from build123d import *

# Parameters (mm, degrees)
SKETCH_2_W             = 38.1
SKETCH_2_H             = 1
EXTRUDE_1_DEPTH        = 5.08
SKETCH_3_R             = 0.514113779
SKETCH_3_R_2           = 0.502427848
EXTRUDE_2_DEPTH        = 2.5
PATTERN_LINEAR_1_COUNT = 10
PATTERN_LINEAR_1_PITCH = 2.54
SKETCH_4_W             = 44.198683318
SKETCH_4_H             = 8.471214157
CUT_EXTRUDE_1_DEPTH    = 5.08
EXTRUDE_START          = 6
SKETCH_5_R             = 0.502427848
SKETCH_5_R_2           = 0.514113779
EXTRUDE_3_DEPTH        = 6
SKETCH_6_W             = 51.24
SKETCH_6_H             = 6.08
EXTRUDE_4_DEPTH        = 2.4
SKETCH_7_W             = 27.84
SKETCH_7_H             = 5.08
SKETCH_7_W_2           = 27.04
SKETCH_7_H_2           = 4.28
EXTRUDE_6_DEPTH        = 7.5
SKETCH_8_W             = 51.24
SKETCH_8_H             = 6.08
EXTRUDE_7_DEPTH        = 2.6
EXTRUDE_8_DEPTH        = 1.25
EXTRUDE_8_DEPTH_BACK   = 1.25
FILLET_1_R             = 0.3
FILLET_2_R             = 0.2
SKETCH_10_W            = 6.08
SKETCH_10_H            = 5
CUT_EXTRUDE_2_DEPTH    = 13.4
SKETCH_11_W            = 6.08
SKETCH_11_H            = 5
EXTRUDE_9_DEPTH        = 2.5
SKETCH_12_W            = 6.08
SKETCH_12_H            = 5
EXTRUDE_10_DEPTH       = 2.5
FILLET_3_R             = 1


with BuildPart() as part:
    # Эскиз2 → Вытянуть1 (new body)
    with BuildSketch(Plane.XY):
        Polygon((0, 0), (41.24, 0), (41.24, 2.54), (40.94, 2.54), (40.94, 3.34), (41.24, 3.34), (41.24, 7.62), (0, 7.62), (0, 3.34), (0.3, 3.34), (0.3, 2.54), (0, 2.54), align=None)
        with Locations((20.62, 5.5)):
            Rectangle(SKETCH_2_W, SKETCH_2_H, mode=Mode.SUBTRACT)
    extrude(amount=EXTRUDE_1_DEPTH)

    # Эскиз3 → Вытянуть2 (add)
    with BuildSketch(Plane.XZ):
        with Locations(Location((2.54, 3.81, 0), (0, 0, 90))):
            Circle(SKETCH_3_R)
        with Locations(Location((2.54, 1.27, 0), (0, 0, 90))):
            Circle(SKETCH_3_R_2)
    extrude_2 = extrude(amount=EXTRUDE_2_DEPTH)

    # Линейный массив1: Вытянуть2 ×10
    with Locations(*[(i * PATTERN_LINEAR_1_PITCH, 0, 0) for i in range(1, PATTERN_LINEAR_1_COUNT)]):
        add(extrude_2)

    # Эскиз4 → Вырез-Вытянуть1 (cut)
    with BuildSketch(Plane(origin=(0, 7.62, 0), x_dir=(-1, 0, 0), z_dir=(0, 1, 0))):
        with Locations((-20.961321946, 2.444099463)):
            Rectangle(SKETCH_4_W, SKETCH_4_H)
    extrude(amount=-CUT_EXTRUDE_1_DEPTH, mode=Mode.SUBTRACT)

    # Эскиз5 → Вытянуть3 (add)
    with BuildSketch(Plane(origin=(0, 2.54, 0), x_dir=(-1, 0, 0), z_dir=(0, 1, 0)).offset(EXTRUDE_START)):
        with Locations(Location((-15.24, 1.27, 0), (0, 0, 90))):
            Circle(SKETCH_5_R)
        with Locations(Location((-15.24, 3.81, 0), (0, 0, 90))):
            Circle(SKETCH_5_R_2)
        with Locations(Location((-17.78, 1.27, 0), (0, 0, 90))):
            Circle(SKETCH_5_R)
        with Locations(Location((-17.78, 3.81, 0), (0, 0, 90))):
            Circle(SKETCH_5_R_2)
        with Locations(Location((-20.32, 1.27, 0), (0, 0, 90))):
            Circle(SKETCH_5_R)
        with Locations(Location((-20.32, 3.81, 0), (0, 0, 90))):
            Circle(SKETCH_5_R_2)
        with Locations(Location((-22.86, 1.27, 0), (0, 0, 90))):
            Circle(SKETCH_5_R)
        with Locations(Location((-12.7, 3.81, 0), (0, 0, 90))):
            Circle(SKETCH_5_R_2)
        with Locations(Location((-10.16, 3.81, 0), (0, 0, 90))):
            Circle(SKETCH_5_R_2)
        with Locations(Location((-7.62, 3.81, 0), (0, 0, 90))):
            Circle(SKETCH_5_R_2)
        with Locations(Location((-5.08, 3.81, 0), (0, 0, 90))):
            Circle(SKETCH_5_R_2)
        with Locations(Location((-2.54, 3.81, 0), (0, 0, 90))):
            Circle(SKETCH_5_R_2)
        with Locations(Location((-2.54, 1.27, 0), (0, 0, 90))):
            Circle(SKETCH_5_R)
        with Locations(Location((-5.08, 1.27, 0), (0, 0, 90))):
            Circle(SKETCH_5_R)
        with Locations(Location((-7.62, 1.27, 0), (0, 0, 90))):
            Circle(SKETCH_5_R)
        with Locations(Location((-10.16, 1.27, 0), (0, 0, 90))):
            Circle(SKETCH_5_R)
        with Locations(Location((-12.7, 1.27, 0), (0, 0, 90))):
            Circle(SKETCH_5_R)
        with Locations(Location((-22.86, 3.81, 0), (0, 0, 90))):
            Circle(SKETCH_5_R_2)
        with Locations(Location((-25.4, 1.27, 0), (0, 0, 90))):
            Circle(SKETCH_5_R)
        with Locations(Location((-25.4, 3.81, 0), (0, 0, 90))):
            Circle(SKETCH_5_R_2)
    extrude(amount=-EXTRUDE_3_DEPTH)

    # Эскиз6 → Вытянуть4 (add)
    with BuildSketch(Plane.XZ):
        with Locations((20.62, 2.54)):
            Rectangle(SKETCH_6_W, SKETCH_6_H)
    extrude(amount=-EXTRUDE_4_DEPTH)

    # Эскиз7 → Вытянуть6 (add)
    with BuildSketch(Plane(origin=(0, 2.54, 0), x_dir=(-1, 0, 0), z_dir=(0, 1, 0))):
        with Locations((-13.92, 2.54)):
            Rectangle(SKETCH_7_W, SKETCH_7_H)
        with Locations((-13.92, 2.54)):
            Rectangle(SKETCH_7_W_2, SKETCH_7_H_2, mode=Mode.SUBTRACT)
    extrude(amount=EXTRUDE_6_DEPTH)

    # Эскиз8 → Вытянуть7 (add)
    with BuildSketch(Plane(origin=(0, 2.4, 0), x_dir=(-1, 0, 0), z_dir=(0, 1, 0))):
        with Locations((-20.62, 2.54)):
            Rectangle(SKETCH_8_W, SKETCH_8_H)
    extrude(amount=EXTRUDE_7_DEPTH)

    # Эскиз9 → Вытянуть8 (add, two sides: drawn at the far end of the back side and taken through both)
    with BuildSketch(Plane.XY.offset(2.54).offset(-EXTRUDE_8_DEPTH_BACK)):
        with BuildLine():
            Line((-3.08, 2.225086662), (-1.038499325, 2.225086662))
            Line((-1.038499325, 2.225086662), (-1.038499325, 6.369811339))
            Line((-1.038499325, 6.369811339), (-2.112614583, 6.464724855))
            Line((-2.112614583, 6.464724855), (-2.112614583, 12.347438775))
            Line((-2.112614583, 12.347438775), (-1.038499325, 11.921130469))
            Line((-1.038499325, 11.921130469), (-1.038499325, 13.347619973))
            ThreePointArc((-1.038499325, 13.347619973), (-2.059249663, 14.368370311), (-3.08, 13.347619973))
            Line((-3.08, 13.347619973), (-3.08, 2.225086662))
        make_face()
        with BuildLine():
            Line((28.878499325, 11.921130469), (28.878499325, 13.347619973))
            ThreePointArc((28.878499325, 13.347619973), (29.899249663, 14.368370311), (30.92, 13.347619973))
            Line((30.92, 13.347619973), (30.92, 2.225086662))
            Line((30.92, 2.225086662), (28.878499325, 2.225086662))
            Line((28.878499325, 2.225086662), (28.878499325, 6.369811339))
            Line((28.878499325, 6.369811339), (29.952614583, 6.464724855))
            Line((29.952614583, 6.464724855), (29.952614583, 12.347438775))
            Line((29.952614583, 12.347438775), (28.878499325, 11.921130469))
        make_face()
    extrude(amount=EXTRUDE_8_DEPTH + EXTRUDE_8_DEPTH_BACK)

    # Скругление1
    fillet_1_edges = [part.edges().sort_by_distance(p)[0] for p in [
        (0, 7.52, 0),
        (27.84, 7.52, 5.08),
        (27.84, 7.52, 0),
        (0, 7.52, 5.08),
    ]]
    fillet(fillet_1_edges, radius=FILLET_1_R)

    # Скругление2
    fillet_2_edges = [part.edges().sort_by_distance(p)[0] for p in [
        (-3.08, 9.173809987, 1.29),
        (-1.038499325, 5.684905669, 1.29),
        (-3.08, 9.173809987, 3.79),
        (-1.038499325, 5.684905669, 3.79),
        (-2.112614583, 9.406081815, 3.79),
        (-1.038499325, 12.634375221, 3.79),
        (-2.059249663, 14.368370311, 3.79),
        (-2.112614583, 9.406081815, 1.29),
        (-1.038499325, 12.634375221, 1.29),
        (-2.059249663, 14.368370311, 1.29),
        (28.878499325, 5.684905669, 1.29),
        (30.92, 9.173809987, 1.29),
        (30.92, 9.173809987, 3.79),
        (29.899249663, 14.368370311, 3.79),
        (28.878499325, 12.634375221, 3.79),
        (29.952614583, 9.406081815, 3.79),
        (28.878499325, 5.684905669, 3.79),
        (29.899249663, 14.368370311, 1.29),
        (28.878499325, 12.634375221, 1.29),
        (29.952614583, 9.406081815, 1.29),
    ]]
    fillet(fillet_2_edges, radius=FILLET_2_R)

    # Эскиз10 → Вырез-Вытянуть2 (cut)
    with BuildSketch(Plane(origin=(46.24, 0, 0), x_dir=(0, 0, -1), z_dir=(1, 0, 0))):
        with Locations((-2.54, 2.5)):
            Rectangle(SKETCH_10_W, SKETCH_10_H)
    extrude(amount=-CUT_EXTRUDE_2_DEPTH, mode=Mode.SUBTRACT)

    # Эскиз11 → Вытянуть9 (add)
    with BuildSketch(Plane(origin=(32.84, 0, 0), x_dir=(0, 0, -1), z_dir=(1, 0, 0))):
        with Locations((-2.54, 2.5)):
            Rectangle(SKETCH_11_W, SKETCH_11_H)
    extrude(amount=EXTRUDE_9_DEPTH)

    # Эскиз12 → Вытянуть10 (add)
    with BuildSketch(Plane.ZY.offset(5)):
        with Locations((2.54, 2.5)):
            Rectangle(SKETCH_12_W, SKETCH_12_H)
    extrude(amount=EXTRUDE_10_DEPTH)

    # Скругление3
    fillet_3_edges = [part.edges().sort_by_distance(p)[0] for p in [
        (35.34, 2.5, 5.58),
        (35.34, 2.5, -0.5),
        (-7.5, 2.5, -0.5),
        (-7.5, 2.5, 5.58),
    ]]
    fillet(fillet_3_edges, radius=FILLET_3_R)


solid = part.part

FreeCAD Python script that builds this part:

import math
import FreeCAD as App
import Part
import Sketcher
Q = App.Units.Quantity


def edges_at(feature, points):
    """Names of the edges that pass closest to the given points."""
    edges = feature.Shape.Edges
    near = lambda p: min(range(len(edges)), key=lambda i: edges[i].distToShape(Part.Vertex(*p))[0])
    return sorted({f"Edge{near(p) + 1}" for p in points})

doc = App.newDocument("Part")
body = doc.addObject("PartDesign::Body", "Body")

# Sketch on XY plane
sketch1 = doc.addObject("Sketcher::SketchObject", "Sketch")
body.addObject(sketch1)
sketch1.AttachmentSupport = (doc.XY_Plane, [""])
sketch1.MapMode = "FlatFace"
sketch1.addGeometry([
    Part.LineSegment(App.Vector(0, 0, 0), App.Vector(41.24, 0, 0)),  # 0
    Part.LineSegment(App.Vector(41.24, 0, 0), App.Vector(41.24, 2.54, 0)),  # 1
    Part.LineSegment(App.Vector(41.24, 2.54, 0), App.Vector(40.94, 2.54, 0)),  # 2
    Part.LineSegment(App.Vector(40.94, 2.54, 0), App.Vector(40.94, 3.34, 0)),  # 3
    Part.LineSegment(App.Vector(40.94, 3.34, 0), App.Vector(41.24, 3.34, 0)),  # 4
    Part.LineSegment(App.Vector(41.24, 3.34, 0), App.Vector(41.24, 7.62, 0)),  # 5
    Part.LineSegment(App.Vector(41.24, 7.62, 0), App.Vector(0, 7.62, 0)),  # 6
    Part.LineSegment(App.Vector(0, 7.62, 0), App.Vector(0, 3.34, 0)),  # 7
    Part.LineSegment(App.Vector(0, 3.34, 0), App.Vector(0.3, 3.34, 0)),  # 8
    Part.LineSegment(App.Vector(0.3, 3.34, 0), App.Vector(0.3, 2.54, 0)),  # 9
    Part.LineSegment(App.Vector(0.3, 2.54, 0), App.Vector(0, 2.54, 0)),  # 10
    Part.LineSegment(App.Vector(0, 2.54, 0), App.Vector(0, 0, 0)),  # 11
    Part.LineSegment(App.Vector(39.67, 5, 0), App.Vector(1.57, 5, 0)),  # 12
    Part.LineSegment(App.Vector(1.57, 5, 0), App.Vector(1.57, 6, 0)),  # 13
    Part.LineSegment(App.Vector(1.57, 6, 0), App.Vector(39.67, 6, 0)),  # 14
    Part.LineSegment(App.Vector(39.67, 6, 0), App.Vector(39.67, 5, 0)),  # 15
], False)
sketch1.addConstraint([
    Sketcher.Constraint("Coincident", 0, 2, 1, 1),
    Sketcher.Constraint("Coincident", 1, 2, 2, 1),
    Sketcher.Constraint("Coincident", 2, 2, 3, 1),
    Sketcher.Constraint("Coincident", 3, 2, 4, 1),
    Sketcher.Constraint("Coincident", 4, 2, 5, 1),
    Sketcher.Constraint("Coincident", 5, 2, 6, 1),
    Sketcher.Constraint("Coincident", 6, 2, 7, 1),
    Sketcher.Constraint("Coincident", 7, 2, 8, 1),
    Sketcher.Constraint("Coincident", 8, 2, 9, 1),
    Sketcher.Constraint("Coincident", 9, 2, 10, 1),
    Sketcher.Constraint("Coincident", 10, 2, 11, 1),
    Sketcher.Constraint("Coincident", 11, 2, 0, 1),
    Sketcher.Constraint("Coincident", 12, 2, 13, 1),
    Sketcher.Constraint("Coincident", 13, 2, 14, 1),
    Sketcher.Constraint("Coincident", 14, 2, 15, 1),
    Sketcher.Constraint("Coincident", 15, 2, 12, 1),
    Sketcher.Constraint("Horizontal", 0),
    Sketcher.Constraint("Vertical", 1),
    Sketcher.Constraint("Horizontal", 2),
    Sketcher.Constraint("Vertical", 3),
    Sketcher.Constraint("Horizontal", 4),
    Sketcher.Constraint("Vertical", 5),
    Sketcher.Constraint("Horizontal", 6),
    Sketcher.Constraint("Vertical", 7),
    Sketcher.Constraint("Horizontal", 8),
    Sketcher.Constraint("Vertical", 9),
    Sketcher.Constraint("Horizontal", 10),
    Sketcher.Constraint("Vertical", 11),
    Sketcher.Constraint("Horizontal", 12),
    Sketcher.Constraint("Vertical", 13),
    Sketcher.Constraint("Horizontal", 14),
    Sketcher.Constraint("Vertical", 15),
    Sketcher.Constraint("Coincident", 11, 2, -1, 1),
    Sketcher.Constraint("PointOnObject", 6, 2, -2),
    Sketcher.Constraint("Horizontal", 4, 2, 7, 2),
    Sketcher.Constraint("Horizontal", 2, 2, 9, 2),
    Sketcher.Constraint("Vertical", 1, 2, 4, 2),
    Sketcher.Constraint("Equal", 4, 8),
    Sketcher.Constraint("DistanceY", 13, 1, 13, 2, Q("1 mm")),
    Sketcher.Constraint("DistanceX", 2, 2, 2, 1, Q("0.3 mm")),
    Sketcher.Constraint("DistanceX", 12, 2, 12, 1, Q("38.1 mm")),
    Sketcher.Constraint("DistanceY", 3, 1, 3, 2, Q("0.8 mm")),
    Sketcher.Constraint("DistanceY", -1, 1, 12, 2, Q("5 mm")),
    Sketcher.Constraint("DistanceX", 0, 1, 0, 2, Q("41.24 mm")),
    Sketcher.Constraint("DistanceY", 1, 1, 1, 2, Q("2.54 mm")),
    Sketcher.Constraint("DistanceY", 5, 1, 5, 2, Q("4.28 mm")),
    Sketcher.Constraint("DistanceX", -1, 1, 12, 2, Q("1.57 mm")),
])
pad1 = doc.addObject("PartDesign::Pad", "Pad")
body.addObject(pad1)
pad1.Profile = sketch1
pad1.Length = 5.08

# Sketch on XZ plane
sketch2 = doc.addObject("Sketcher::SketchObject", "Sketch001")
body.addObject(sketch2)
sketch2.AttachmentSupport = (doc.XZ_Plane, [""])
sketch2.MapMode = "FlatFace"
sketch2.addGeometry([
    Part.Circle(App.Vector(2.5, 3.8, 0), App.Vector(0, 0, 1), 0.5),
    Part.Circle(App.Vector(2.5, 1.3, 0), App.Vector(0, 0, 1), 0.5),
], False)
sketch2.addConstraint([
    Sketcher.Constraint("Vertical", 0, 3, 1, 3),
    Sketcher.Constraint("DistanceX", -1, 1, 0, 3, Q("2.54 mm")),
    Sketcher.Constraint("DistanceY", -1, 1, 0, 3, Q("3.81 mm")),
    Sketcher.Constraint("DistanceY", -1, 1, 1, 3, Q("1.27 mm")),
    Sketcher.Constraint("Diameter", 0, Q("1.028228 mm")),
    Sketcher.Constraint("Diameter", 1, Q("1.004856 mm")),
])
pad2 = doc.addObject("PartDesign::Pad", "Pad001")
body.addObject(pad2)
pad2.Profile = sketch2
pad2.Length = 2.5
doc.recompute()

linearpattern = doc.addObject("PartDesign::LinearPattern", "LinearPattern")
body.addObject(linearpattern)
linearpattern.Originals = [pad2]
linearpattern.Direction = (doc.X_Axis, [""])
linearpattern.Mode = "offset"
linearpattern.Offset = 2.54
linearpattern.Occurrences = 10
body.Tip = linearpattern

# Sketch on XZ plane
sketch3 = doc.addObject("Sketcher::SketchObject", "Sketch002")
body.addObject(sketch3)
sketch3.AttachmentSupport = (doc.XZ_Plane, [""])
sketch3.MapMode = "FlatFace"
sketch3.AttachmentOffset = App.Placement(App.Vector(0, 0, -7.62), App.Rotation())
sketch3.addGeometry([
    Part.LineSegment(App.Vector(43, 7, 0), App.Vector(43, -2, 0)),
    Part.LineSegment(App.Vector(43, -2, 0), App.Vector(-1, -2, 0)),
    Part.LineSegment(App.Vector(-1, -2, 0), App.Vector(-1, 7, 0)),
    Part.LineSegment(App.Vector(-1, 7, 0), App.Vector(43, 7, 0)),
], False)
sketch3.addConstraint([
    Sketcher.Constraint("Coincident", 0, 2, 1, 1),
    Sketcher.Constraint("Coincident", 1, 2, 2, 1),
    Sketcher.Constraint("Coincident", 2, 2, 3, 1),
    Sketcher.Constraint("Coincident", 3, 2, 0, 1),
    Sketcher.Constraint("Vertical", 0),
    Sketcher.Constraint("Horizontal", 1),
    Sketcher.Constraint("Vertical", 2),
    Sketcher.Constraint("Horizontal", 3),
    Sketcher.Constraint("DistanceX", 1, 2, 1, 1, Q("44.198683 mm")),
    Sketcher.Constraint("DistanceY", 0, 2, 0, 1, Q("8.471214 mm")),
    Sketcher.Constraint("DistanceX", 1, 2, -1, 1, Q("1.13802 mm")),
    Sketcher.Constraint("DistanceY", 0, 2, -1, 1, Q("1.791508 mm")),
])
pocket1 = doc.addObject("PartDesign::Pocket", "Pocket")
body.addObject(pocket1)
pocket1.Profile = sketch3
pocket1.Length = 5.08
pocket1.Reversed = True

# Sketch on XZ plane
sketch4 = doc.addObject("Sketcher::SketchObject", "Sketch003")
body.addObject(sketch4)
sketch4.AttachmentSupport = (doc.XZ_Plane, [""])
sketch4.MapMode = "FlatFace"
sketch4.AttachmentOffset = App.Placement(App.Vector(0, 0, -8.54), App.Rotation())
sketch4.addGeometry([
    Part.Circle(App.Vector(15.2, 1.3, 0), App.Vector(0, 0, 1), 0.5),  # 0
    Part.Circle(App.Vector(15.2, 3.8, 0), App.Vector(0, 0, 1), 0.5),  # 1
    Part.Circle(App.Vector(17.8, 1.3, 0), App.Vector(0, 0, 1), 0.5),  # 2
    Part.Circle(App.Vector(17.8, 3.8, 0), App.Vector(0, 0, 1), 0.5),  # 3
    Part.Circle(App.Vector(20.3, 1.3, 0), App.Vector(0, 0, 1), 0.5),  # 4
    Part.Circle(App.Vector(20.3, 3.8, 0), App.Vector(0, 0, 1), 0.5),  # 5
    Part.Circle(App.Vector(22.9, 1.3, 0), App.Vector(0, 0, 1), 0.5),  # 6
    Part.Circle(App.Vector(12.7, 3.8, 0), App.Vector(0, 0, 1), 0.5),  # 7
    Part.Circle(App.Vector(10.2, 3.8, 0), App.Vector(0, 0, 1), 0.5),  # 8
    Part.Circle(App.Vector(7.6, 3.8, 0), App.Vector(0, 0, 1), 0.5),  # 9
    Part.Circle(App.Vector(5.1, 3.8, 0), App.Vector(0, 0, 1), 0.5),  # 10
    Part.Circle(App.Vector(2.5, 3.8, 0), App.Vector(0, 0, 1), 0.5),  # 11
    Part.Circle(App.Vector(2.5, 1.3, 0), App.Vector(0, 0, 1), 0.5),  # 12
    Part.Circle(App.Vector(5.1, 1.3, 0), App.Vector(0, 0, 1), 0.5),  # 13
    Part.Circle(App.Vector(7.6, 1.3, 0), App.Vector(0, 0, 1), 0.5),  # 14
    Part.Circle(App.Vector(10.2, 1.3, 0), App.Vector(0, 0, 1), 0.5),  # 15
    Part.Circle(App.Vector(12.7, 1.3, 0), App.Vector(0, 0, 1), 0.5),  # 16
    Part.Circle(App.Vector(22.9, 3.8, 0), App.Vector(0, 0, 1), 0.5),  # 17
    Part.Circle(App.Vector(25.4, 1.3, 0), App.Vector(0, 0, 1), 0.5),  # 18
    Part.Circle(App.Vector(25.4, 3.8, 0), App.Vector(0, 0, 1), 0.5),  # 19
], False)
sketch4.addConstraint([
    Sketcher.Constraint("Equal", 0, 2),
    Sketcher.Constraint("Equal", 1, 3),
    Sketcher.Constraint("Equal", 2, 4),
    Sketcher.Constraint("Equal", 3, 5),
    Sketcher.Constraint("Equal", 4, 6),
    Sketcher.Constraint("Equal", 5, 7),
    Sketcher.Constraint("Equal", 7, 8),
    Sketcher.Constraint("Equal", 8, 9),
    Sketcher.Constraint("Equal", 9, 10),
    Sketcher.Constraint("Equal", 10, 11),
    Sketcher.Constraint("Equal", 6, 12),
    Sketcher.Constraint("Equal", 12, 13),
    Sketcher.Constraint("Equal", 13, 14),
    Sketcher.Constraint("Equal", 14, 15),
    Sketcher.Constraint("Equal", 15, 16),
    Sketcher.Constraint("Equal", 11, 17),
    Sketcher.Constraint("Equal", 16, 18),
    Sketcher.Constraint("Equal", 17, 19),
    Sketcher.Constraint("Horizontal", 0, 3, 2, 3),
    Sketcher.Constraint("Horizontal", 1, 3, 3, 3),
    Sketcher.Constraint("Horizontal", 2, 3, 4, 3),
    Sketcher.Constraint("Horizontal", 3, 3, 5, 3),
    Sketcher.Constraint("Horizontal", 4, 3, 6, 3),
    Sketcher.Constraint("Horizontal", 5, 3, 7, 3),
    Sketcher.Constraint("Horizontal", 7, 3, 8, 3),
    Sketcher.Constraint("Horizontal", 8, 3, 9, 3),
    Sketcher.Constraint("Horizontal", 9, 3, 10, 3),
    Sketcher.Constraint("Horizontal", 10, 3, 11, 3),
    Sketcher.Constraint("Horizontal", 6, 3, 12, 3),
    Sketcher.Constraint("Horizontal", 12, 3, 13, 3),
    Sketcher.Constraint("Horizontal", 13, 3, 14, 3),
    Sketcher.Constraint("Horizontal", 14, 3, 15, 3),
    Sketcher.Constraint("Horizontal", 15, 3, 16, 3),
    Sketcher.Constraint("Horizontal", 11, 3, 17, 3),
    Sketcher.Constraint("Horizontal", 16, 3, 18, 3),
    Sketcher.Constraint("Horizontal", 17, 3, 19, 3),
    Sketcher.Constraint("Vertical", 0, 3, 1, 3),
    Sketcher.Constraint("Vertical", 2, 3, 3, 3),
    Sketcher.Constraint("Vertical", 4, 3, 5, 3),
    Sketcher.Constraint("Vertical", 11, 3, 12, 3),
    Sketcher.Constraint("Vertical", 10, 3, 13, 3),
    Sketcher.Constraint("Vertical", 9, 3, 14, 3),
    Sketcher.Constraint("Vertical", 8, 3, 15, 3),
    Sketcher.Constraint("Vertical", 7, 3, 16, 3),
    Sketcher.Constraint("Vertical", 6, 3, 17, 3),
    Sketcher.Constraint("Vertical", 18, 3, 19, 3),
    Sketcher.Constraint("DistanceX", -1, 1, 7, 3, Q("12.7 mm")),
    Sketcher.Constraint("DistanceX", -1, 1, 18, 3, Q("25.4 mm")),
    Sketcher.Constraint("DistanceX", 11, 3, 1, 3, Q("12.7 mm")),
    Sketcher.Constraint("DistanceX", -1, 1, 0, 3, Q("15.24 mm")),
    Sketcher.Constraint("DistanceY", -1, 1, 0, 3, Q("1.27 mm")),
    Sketcher.Constraint("DistanceY", -1, 1, 1, 3, Q("3.81 mm")),
    Sketcher.Constraint("DistanceX", -1, 1, 2, 3, Q("17.78 mm")),
    Sketcher.Constraint("DistanceX", -1, 1, 4, 3, Q("20.32 mm")),
    Sketcher.Constraint("DistanceX", -1, 1, 6, 3, Q("22.86 mm")),
    Sketcher.Constraint("DistanceX", -1, 1, 8, 3, Q("10.16 mm")),
    Sketcher.Constraint("DistanceX", -1, 1, 9, 3, Q("7.62 mm")),
    Sketcher.Constraint("DistanceX", -1, 1, 10, 3, Q("5.08 mm")),
    Sketcher.Constraint("Diameter", 0, Q("1.004856 mm")),
    Sketcher.Constraint("Diameter", 1, Q("1.028228 mm")),
])
pad3 = doc.addObject("PartDesign::Pad", "Pad002")
body.addObject(pad3)
pad3.Profile = sketch4
pad3.Length = 6

# Sketch on XZ plane
sketch5 = doc.addObject("Sketcher::SketchObject", "Sketch004")
body.addObject(sketch5)
sketch5.AttachmentSupport = (doc.XZ_Plane, [""])
sketch5.MapMode = "FlatFace"
sketch5.addGeometry([
    Part.LineSegment(App.Vector(-5, 6, 0), App.Vector(-5, 0, 0)),
    Part.LineSegment(App.Vector(-5, 0, 0), App.Vector(46, 0, 0)),
    Part.LineSegment(App.Vector(46, 0, 0), App.Vector(46, 6, 0)),
    Part.LineSegment(App.Vector(46, 6, 0), App.Vector(-5, 6, 0)),
], False)
sketch5.addConstraint([
    Sketcher.Constraint("Coincident", 0, 2, 1, 1),
    Sketcher.Constraint("Coincident", 1, 2, 2, 1),
    Sketcher.Constraint("Coincident", 2, 2, 3, 1),
    Sketcher.Constraint("Coincident", 3, 2, 0, 1),
    Sketcher.Constraint("Vertical", 0),
    Sketcher.Constraint("Horizontal", 1),
    Sketcher.Constraint("Vertical", 2),
    Sketcher.Constraint("Horizontal", 3),
    Sketcher.Constraint("DistanceX", 0, 2, -1, 1, Q("5 mm")),
    Sketcher.Constraint("DistanceX", 1, 1, 1, 2, Q("51.24 mm")),
    Sketcher.Constraint("DistanceY", 0, 2, 0, 1, Q("6.08 mm")),
    Sketcher.Constraint("DistanceY", 0, 2, -1, 1, Q("0.5 mm")),
])
pad4 = doc.addObject("PartDesign::Pad", "Pad003")
body.addObject(pad4)
pad4.Profile = sketch5
pad4.Length = 2.4
pad4.Reversed = True

# Sketch on XZ plane
sketch6 = doc.addObject("Sketcher::SketchObject", "Sketch005")
body.addObject(sketch6)
sketch6.AttachmentSupport = (doc.XZ_Plane, [""])
sketch6.MapMode = "FlatFace"
sketch6.AttachmentOffset = App.Placement(App.Vector(0, 0, -2.54), App.Rotation())
sketch6.addGeometry([
    Part.LineSegment(App.Vector(27.8, 5.1, 0), App.Vector(27.8, 0, 0)),  # 0
    Part.LineSegment(App.Vector(27.8, 0, 0), App.Vector(0, 0, 0)),  # 1
    Part.LineSegment(App.Vector(0, 0, 0), App.Vector(0, 5.1, 0)),  # 2
    Part.LineSegment(App.Vector(0, 5.1, 0), App.Vector(27.8, 5.1, 0)),  # 3
    Part.LineSegment(App.Vector(0.4, 0.4, 0), App.Vector(27.4, 0.4, 0)),  # 4
    Part.LineSegment(App.Vector(27.4, 0.4, 0), App.Vector(27.4, 4.7, 0)),  # 5
    Part.LineSegment(App.Vector(27.4, 4.7, 0), App.Vector(0.4, 4.7, 0)),  # 6
    Part.LineSegment(App.Vector(0.4, 4.7, 0), App.Vector(0.4, 0.4, 0)),  # 7
], False)
sketch6.addConstraint([
    Sketcher.Constraint("Coincident", 0, 2, 1, 1),
    Sketcher.Constraint("Coincident", 1, 2, 2, 1),
    Sketcher.Constraint("Coincident", 2, 2, 3, 1),
    Sketcher.Constraint("Coincident", 3, 2, 0, 1),
    Sketcher.Constraint("Coincident", 4, 2, 5, 1),
    Sketcher.Constraint("Coincident", 5, 2, 6, 1),
    Sketcher.Constraint("Coincident", 6, 2, 7, 1),
    Sketcher.Constraint("Coincident", 7, 2, 4, 1),
    Sketcher.Constraint("Vertical", 0),
    Sketcher.Constraint("Horizontal", 1),
    Sketcher.Constraint("Vertical", 2),
    Sketcher.Constraint("Horizontal", 3),
    Sketcher.Constraint("Horizontal", 4),
    Sketcher.Constraint("Vertical", 5),
    Sketcher.Constraint("Horizontal", 6),
    Sketcher.Constraint("Vertical", 7),
    Sketcher.Constraint("Coincident", 1, 2, -1, 1),
    Sketcher.Constraint("DistanceX", 1, 2, 1, 1, Q("27.84 mm")),
    Sketcher.Constraint("DistanceX", 4, 1, 4, 2, Q("27.04 mm")),
    Sketcher.Constraint("DistanceY", 0, 2, 0, 1, Q("5.08 mm")),
    Sketcher.Constraint("DistanceY", 5, 1, 5, 2, Q("4.28 mm")),
    Sketcher.Constraint("DistanceY", -1, 1, 4, 2, Q("0.4 mm")),
    Sketcher.Constraint("DistanceX", -1, 1, 6, 2, Q("0.4 mm")),
])
pad5 = doc.addObject("PartDesign::Pad", "Pad004")
body.addObject(pad5)
pad5.Profile = sketch6
pad5.Length = 7.5
pad5.Reversed = True

# Sketch on XZ plane
sketch7 = doc.addObject("Sketcher::SketchObject", "Sketch006")
body.addObject(sketch7)
sketch7.AttachmentSupport = (doc.XZ_Plane, [""])
sketch7.MapMode = "FlatFace"
sketch7.AttachmentOffset = App.Placement(App.Vector(0, 0, -2.4), App.Rotation())
sketch7.addGeometry([
    Part.LineSegment(App.Vector(46, 6, 0), App.Vector(46, 0, 0)),
    Part.LineSegment(App.Vector(46, 0, 0), App.Vector(-5, 0, 0)),
    Part.LineSegment(App.Vector(-5, 0, 0), App.Vector(-5, 6, 0)),
    Part.LineSegment(App.Vector(-5, 6, 0), App.Vector(46, 6, 0)),
], False)
sketch7.addConstraint([
    Sketcher.Constraint("Coincident", 0, 2, 1, 1),
    Sketcher.Constraint("Coincident", 1, 2, 2, 1),
    Sketcher.Constraint("Coincident", 2, 2, 3, 1),
    Sketcher.Constraint("Coincident", 3, 2, 0, 1),
    Sketcher.Constraint("Vertical", 0),
    Sketcher.Constraint("Horizontal", 1),
    Sketcher.Constraint("Vertical", 2),
    Sketcher.Constraint("Horizontal", 3),
    Sketcher.Constraint("DistanceX", 1, 2, -1, 1, Q("5 mm")),
    Sketcher.Constraint("DistanceX", 1, 2, 1, 1, Q("51.24 mm")),
    Sketcher.Constraint("DistanceY", 0, 2, 0, 1, Q("6.08 mm")),
    Sketcher.Constraint("DistanceY", 0, 2, -1, 1, Q("0.5 mm")),
])
pad6 = doc.addObject("PartDesign::Pad", "Pad005")
body.addObject(pad6)
pad6.Profile = sketch7
pad6.Length = 2.6
pad6.Reversed = True

# Sketch on XY plane
sketch8 = doc.addObject("Sketcher::SketchObject", "Sketch007")
body.addObject(sketch8)
sketch8.AttachmentSupport = (doc.XY_Plane, [""])
sketch8.MapMode = "FlatFace"
sketch8.AttachmentOffset = App.Placement(App.Vector(0, 0, 2.54), App.Rotation())
sketch8.addGeometry([
    Part.LineSegment(App.Vector(-3.1, 2.2, 0), App.Vector(-1, 2.2, 0)),  # 0
    Part.LineSegment(App.Vector(-1, 2.2, 0), App.Vector(-1, 6.4, 0)),  # 1
    Part.LineSegment(App.Vector(-1, 6.4, 0), App.Vector(-2.1, 6.5, 0)),  # 2
    Part.LineSegment(App.Vector(-2.1, 6.5, 0), App.Vector(-2.1, 12.3, 0)),  # 3
    Part.LineSegment(App.Vector(-2.1, 12.3, 0), App.Vector(-1, 11.9, 0)),  # 4
    Part.LineSegment(App.Vector(-1, 11.9, 0), App.Vector(-1, 13.3, 0)),  # 5
    Part.ArcOfCircle(Part.Circle(App.Vector(-2.1, 13.3, 0), App.Vector(0, 0, 1), 1), math.radians(0), math.radians(180)),  # 6
    Part.LineSegment(App.Vector(-3.1, 13.3, 0), App.Vector(-3.1, 2.2, 0)),  # 7
    Part.LineSegment(App.Vector(28.9, 13.3, 0), App.Vector(28.9, 11.9, 0)),  # 8
    Part.LineSegment(App.Vector(28.9, 11.9, 0), App.Vector(30, 12.3, 0)),  # 9
    Part.LineSegment(App.Vector(30, 12.3, 0), App.Vector(30, 6.5, 0)),  # 10
    Part.LineSegment(App.Vector(30, 6.5, 0), App.Vector(28.9, 6.4, 0)),  # 11
    Part.LineSegment(App.Vector(28.9, 6.4, 0), App.Vector(28.9, 2.2, 0)),  # 12
    Part.LineSegment(App.Vector(28.9, 2.2, 0), App.Vector(30.9, 2.2, 0)),  # 13
    Part.LineSegment(App.Vector(30.9, 2.2, 0), App.Vector(30.9, 13.3, 0)),  # 14
    Part.ArcOfCircle(Part.Circle(App.Vector(29.9, 13.3, 0), App.Vector(0, 0, 1), 1), math.radians(0), math.radians(180)),  # 15
], False)
sketch8.addConstraint([
    Sketcher.Constraint("Coincident", 0, 2, 1, 1),
    Sketcher.Constraint("Coincident", 1, 2, 2, 1),
    Sketcher.Constraint("Coincident", 2, 2, 3, 1),
    Sketcher.Constraint("Coincident", 3, 2, 4, 1),
    Sketcher.Constraint("Coincident", 4, 2, 5, 1),
    Sketcher.Constraint("Tangent", 5, 2, 6, 1),
    Sketcher.Constraint("Tangent", 6, 2, 7, 1),
    Sketcher.Constraint("Coincident", 7, 2, 0, 1),
    Sketcher.Constraint("Coincident", 8, 2, 9, 1),
    Sketcher.Constraint("Coincident", 9, 2, 10, 1),
    Sketcher.Constraint("Coincident", 10, 2, 11, 1),
    Sketcher.Constraint("Coincident", 11, 2, 12, 1),
    Sketcher.Constraint("Coincident", 12, 2, 13, 1),
    Sketcher.Constraint("Coincident", 13, 2, 14, 1),
    Sketcher.Constraint("Tangent", 14, 2, 15, 1),
    Sketcher.Constraint("Tangent", 15, 2, 8, 1),
    Sketcher.Constraint("Horizontal", 0),
    Sketcher.Constraint("Vertical", 1),
    Sketcher.Constraint("Vertical", 3),
    Sketcher.Constraint("Vertical", 5),
    Sketcher.Constraint("Vertical", 7),
    Sketcher.Constraint("Vertical", 8),
    Sketcher.Constraint("Vertical", 10),
    Sketcher.Constraint("Vertical", 12),
    Sketcher.Constraint("Horizontal", 13),
    Sketcher.Constraint("Vertical", 14),
    Sketcher.Constraint("Equal", 6, 15),
    Sketcher.Constraint("Horizontal", 6, 3, 15, 3),
    Sketcher.Constraint("Horizontal", 4, 2, 8, 2),
    Sketcher.Constraint("Horizontal", 3, 2, 9, 2),
    Sketcher.Constraint("Horizontal", 2, 2, 10, 2),
    Sketcher.Constraint("Horizontal", 1, 2, 11, 2),
    Sketcher.Constraint("Horizontal", 7, 2, 12, 2),
    Sketcher.Constraint("Vertical", 1, 2, 4, 2),
    Sketcher.Constraint("Vertical", 8, 2, 11, 2),
    Sketcher.Constraint("Equal", 4, 9),
    Sketcher.Constraint("DistanceX", 6, 2, -1, 1, Q("3.08 mm")),
    Sketcher.Constraint("DistanceX", -1, 1, 13, 2, Q("30.92 mm")),
    Sketcher.Constraint("Radius", 6, Q("1.02075 mm")),
    Sketcher.Constraint("Distance", 2, Q("1.078301 mm")),
    Sketcher.Constraint("DistanceY", 5, 1, 5, 2, Q("1.42649 mm")),
    Sketcher.Constraint("DistanceY", 1, 1, 1, 2, Q("4.144725 mm")),
    Sketcher.Constraint("DistanceY", 3, 1, 3, 2, Q("5.882714 mm")),
    Sketcher.Constraint("DistanceY", 7, 2, 7, 1, Q("11.122533 mm")),
    Sketcher.Constraint("DistanceY", -1, 1, 6, 3, Q("13.34762 mm")),
    Sketcher.Constraint("DistanceY", -1, 1, 3, 2, Q("12.347439 mm")),
])
pad7 = doc.addObject("PartDesign::Pad", "Pad006")
body.addObject(pad7)
pad7.Profile = sketch8
pad7.Type = "TwoLengths"
pad7.Length = 1.25
pad7.Length2 = 1.25
doc.recompute()

fillet = doc.addObject("PartDesign::Fillet", "Fillet")
body.addObject(fillet)
fillet.Base = (pad7, edges_at(pad7, [
    (0, 7.52, 0),
    (27.84, 7.52, 5.08),
    (27.84, 7.52, 0),
    (0, 7.52, 5.08),
]))
fillet.Radius = 0.3
doc.recompute()

fillet2 = doc.addObject("PartDesign::Fillet", "Fillet001")
body.addObject(fillet2)
fillet2.Base = (fillet, edges_at(fillet, [
    (-3.08, 9.174, 1.29),
    (-1.038, 5.685, 1.29),
    (-3.08, 9.174, 3.79),
    (-1.038, 5.685, 3.79),
    (-2.113, 9.406, 3.79),
    (-1.038, 12.634, 3.79),
    (-2.059, 14.368, 3.79),
    (-2.113, 9.406, 1.29),
    (-1.038, 12.634, 1.29),
    (-2.059, 14.368, 1.29),
    (28.878, 5.685, 1.29),
    (30.92, 9.174, 1.29),
    (30.92, 9.174, 3.79),
    (29.899, 14.368, 3.79),
    (28.878, 12.634, 3.79),
    (29.953, 9.406, 3.79),
    (28.878, 5.685, 3.79),
    (29.899, 14.368, 1.29),
    (28.878, 12.634, 1.29),
    (29.953, 9.406, 1.29),
]))
fillet2.Radius = 0.2

# Sketch on YZ plane
sketch9 = doc.addObject("Sketcher::SketchObject", "Sketch008")
body.addObject(sketch9)
sketch9.AttachmentSupport = (doc.YZ_Plane, [""])
sketch9.MapMode = "FlatFace"
sketch9.AttachmentOffset = App.Placement(App.Vector(0, 0, 46.24), App.Rotation())
sketch9.addGeometry([
    Part.LineSegment(App.Vector(5, 6, 0), App.Vector(0, 6, 0)),
    Part.LineSegment(App.Vector(0, 6, 0), App.Vector(0, 0, 0)),
    Part.LineSegment(App.Vector(0, 0, 0), App.Vector(5, 0, 0)),
    Part.LineSegment(App.Vector(5, 0, 0), App.Vector(5, 6, 0)),
], False)
sketch9.addConstraint([
    Sketcher.Constraint("Coincident", 0, 2, 1, 1),
    Sketcher.Constraint("Coincident", 1, 2, 2, 1),
    Sketcher.Constraint("Coincident", 2, 2, 3, 1),
    Sketcher.Constraint("Coincident", 3, 2, 0, 1),
    Sketcher.Constraint("Horizontal", 0),
    Sketcher.Constraint("Vertical", 1),
    Sketcher.Constraint("Horizontal", 2),
    Sketcher.Constraint("Vertical", 3),
    Sketcher.Constraint("PointOnObject", 0, 2, -2),
    Sketcher.Constraint("DistanceX", 0, 2, 0, 1, Q("5 mm")),
    Sketcher.Constraint("DistanceY", 1, 2, 1, 1, Q("6.08 mm")),
    Sketcher.Constraint("DistanceY", 1, 2, -1, 1, Q("0.5 mm")),
])
pocket2 = doc.addObject("PartDesign::Pocket", "Pocket001")
body.addObject(pocket2)
pocket2.Profile = sketch9
pocket2.Length = 13.4

# Sketch on YZ plane
sketch10 = doc.addObject("Sketcher::SketchObject", "Sketch009")
body.addObject(sketch10)
sketch10.AttachmentSupport = (doc.YZ_Plane, [""])
sketch10.MapMode = "FlatFace"
sketch10.AttachmentOffset = App.Placement(App.Vector(0, 0, 32.84), App.Rotation())
sketch10.addGeometry([
    Part.LineSegment(App.Vector(5, 6, 0), App.Vector(0, 6, 0)),
    Part.LineSegment(App.Vector(0, 6, 0), App.Vector(0, 0, 0)),
    Part.LineSegment(App.Vector(0, 0, 0), App.Vector(5, 0, 0)),
    Part.LineSegment(App.Vector(5, 0, 0), App.Vector(5, 6, 0)),
], False)
sketch10.addConstraint([
    Sketcher.Constraint("Coincident", 0, 2, 1, 1),
    Sketcher.Constraint("Coincident", 1, 2, 2, 1),
    Sketcher.Constraint("Coincident", 2, 2, 3, 1),
    Sketcher.Constraint("Coincident", 3, 2, 0, 1),
    Sketcher.Constraint("Horizontal", 0),
    Sketcher.Constraint("Vertical", 1),
    Sketcher.Constraint("Horizontal", 2),
    Sketcher.Constraint("Vertical", 3),
    Sketcher.Constraint("PointOnObject", 0, 2, -2),
    Sketcher.Constraint("DistanceX", 0, 2, 0, 1, Q("5 mm")),
    Sketcher.Constraint("DistanceY", 1, 2, 1, 1, Q("6.08 mm")),
    Sketcher.Constraint("DistanceY", 1, 2, -1, 1, Q("0.5 mm")),
])
pad8 = doc.addObject("PartDesign::Pad", "Pad007")
body.addObject(pad8)
pad8.Profile = sketch10
pad8.Length = 2.5

# Sketch on YZ plane
sketch11 = doc.addObject("Sketcher::SketchObject", "Sketch010")
body.addObject(sketch11)
sketch11.AttachmentSupport = (doc.YZ_Plane, [""])
sketch11.MapMode = "FlatFace"
sketch11.AttachmentOffset = App.Placement(App.Vector(0, 0, -5), App.Rotation())
sketch11.addGeometry([
    Part.LineSegment(App.Vector(5, 0, 0), App.Vector(0, 0, 0)),
    Part.LineSegment(App.Vector(0, 0, 0), App.Vector(0, 6, 0)),
    Part.LineSegment(App.Vector(0, 6, 0), App.Vector(5, 6, 0)),
    Part.LineSegment(App.Vector(5, 6, 0), App.Vector(5, 0, 0)),
], False)
sketch11.addConstraint([
    Sketcher.Constraint("Coincident", 0, 2, 1, 1),
    Sketcher.Constraint("Coincident", 1, 2, 2, 1),
    Sketcher.Constraint("Coincident", 2, 2, 3, 1),
    Sketcher.Constraint("Coincident", 3, 2, 0, 1),
    Sketcher.Constraint("Horizontal", 0),
    Sketcher.Constraint("Vertical", 1),
    Sketcher.Constraint("Horizontal", 2),
    Sketcher.Constraint("Vertical", 3),
    Sketcher.Constraint("PointOnObject", 0, 2, -2),
    Sketcher.Constraint("DistanceX", 0, 2, 0, 1, Q("5 mm")),
    Sketcher.Constraint("DistanceY", 1, 1, 1, 2, Q("6.08 mm")),
    Sketcher.Constraint("DistanceY", 0, 2, -1, 1, Q("0.5 mm")),
])
pad9 = doc.addObject("PartDesign::Pad", "Pad008")
body.addObject(pad9)
pad9.Profile = sketch11
pad9.Length = 2.5
pad9.Reversed = True
doc.recompute()

fillet3 = doc.addObject("PartDesign::Fillet", "Fillet002")
body.addObject(fillet3)
fillet3.Base = (pad9, edges_at(pad9, [
    (35.34, 2.5, 5.58),
    (35.34, 2.5, -0.5),
    (-7.5, 2.5, -0.5),
    (-7.5, 2.5, 5.58),
]))
fillet3.Radius = 1

doc.recompute()
